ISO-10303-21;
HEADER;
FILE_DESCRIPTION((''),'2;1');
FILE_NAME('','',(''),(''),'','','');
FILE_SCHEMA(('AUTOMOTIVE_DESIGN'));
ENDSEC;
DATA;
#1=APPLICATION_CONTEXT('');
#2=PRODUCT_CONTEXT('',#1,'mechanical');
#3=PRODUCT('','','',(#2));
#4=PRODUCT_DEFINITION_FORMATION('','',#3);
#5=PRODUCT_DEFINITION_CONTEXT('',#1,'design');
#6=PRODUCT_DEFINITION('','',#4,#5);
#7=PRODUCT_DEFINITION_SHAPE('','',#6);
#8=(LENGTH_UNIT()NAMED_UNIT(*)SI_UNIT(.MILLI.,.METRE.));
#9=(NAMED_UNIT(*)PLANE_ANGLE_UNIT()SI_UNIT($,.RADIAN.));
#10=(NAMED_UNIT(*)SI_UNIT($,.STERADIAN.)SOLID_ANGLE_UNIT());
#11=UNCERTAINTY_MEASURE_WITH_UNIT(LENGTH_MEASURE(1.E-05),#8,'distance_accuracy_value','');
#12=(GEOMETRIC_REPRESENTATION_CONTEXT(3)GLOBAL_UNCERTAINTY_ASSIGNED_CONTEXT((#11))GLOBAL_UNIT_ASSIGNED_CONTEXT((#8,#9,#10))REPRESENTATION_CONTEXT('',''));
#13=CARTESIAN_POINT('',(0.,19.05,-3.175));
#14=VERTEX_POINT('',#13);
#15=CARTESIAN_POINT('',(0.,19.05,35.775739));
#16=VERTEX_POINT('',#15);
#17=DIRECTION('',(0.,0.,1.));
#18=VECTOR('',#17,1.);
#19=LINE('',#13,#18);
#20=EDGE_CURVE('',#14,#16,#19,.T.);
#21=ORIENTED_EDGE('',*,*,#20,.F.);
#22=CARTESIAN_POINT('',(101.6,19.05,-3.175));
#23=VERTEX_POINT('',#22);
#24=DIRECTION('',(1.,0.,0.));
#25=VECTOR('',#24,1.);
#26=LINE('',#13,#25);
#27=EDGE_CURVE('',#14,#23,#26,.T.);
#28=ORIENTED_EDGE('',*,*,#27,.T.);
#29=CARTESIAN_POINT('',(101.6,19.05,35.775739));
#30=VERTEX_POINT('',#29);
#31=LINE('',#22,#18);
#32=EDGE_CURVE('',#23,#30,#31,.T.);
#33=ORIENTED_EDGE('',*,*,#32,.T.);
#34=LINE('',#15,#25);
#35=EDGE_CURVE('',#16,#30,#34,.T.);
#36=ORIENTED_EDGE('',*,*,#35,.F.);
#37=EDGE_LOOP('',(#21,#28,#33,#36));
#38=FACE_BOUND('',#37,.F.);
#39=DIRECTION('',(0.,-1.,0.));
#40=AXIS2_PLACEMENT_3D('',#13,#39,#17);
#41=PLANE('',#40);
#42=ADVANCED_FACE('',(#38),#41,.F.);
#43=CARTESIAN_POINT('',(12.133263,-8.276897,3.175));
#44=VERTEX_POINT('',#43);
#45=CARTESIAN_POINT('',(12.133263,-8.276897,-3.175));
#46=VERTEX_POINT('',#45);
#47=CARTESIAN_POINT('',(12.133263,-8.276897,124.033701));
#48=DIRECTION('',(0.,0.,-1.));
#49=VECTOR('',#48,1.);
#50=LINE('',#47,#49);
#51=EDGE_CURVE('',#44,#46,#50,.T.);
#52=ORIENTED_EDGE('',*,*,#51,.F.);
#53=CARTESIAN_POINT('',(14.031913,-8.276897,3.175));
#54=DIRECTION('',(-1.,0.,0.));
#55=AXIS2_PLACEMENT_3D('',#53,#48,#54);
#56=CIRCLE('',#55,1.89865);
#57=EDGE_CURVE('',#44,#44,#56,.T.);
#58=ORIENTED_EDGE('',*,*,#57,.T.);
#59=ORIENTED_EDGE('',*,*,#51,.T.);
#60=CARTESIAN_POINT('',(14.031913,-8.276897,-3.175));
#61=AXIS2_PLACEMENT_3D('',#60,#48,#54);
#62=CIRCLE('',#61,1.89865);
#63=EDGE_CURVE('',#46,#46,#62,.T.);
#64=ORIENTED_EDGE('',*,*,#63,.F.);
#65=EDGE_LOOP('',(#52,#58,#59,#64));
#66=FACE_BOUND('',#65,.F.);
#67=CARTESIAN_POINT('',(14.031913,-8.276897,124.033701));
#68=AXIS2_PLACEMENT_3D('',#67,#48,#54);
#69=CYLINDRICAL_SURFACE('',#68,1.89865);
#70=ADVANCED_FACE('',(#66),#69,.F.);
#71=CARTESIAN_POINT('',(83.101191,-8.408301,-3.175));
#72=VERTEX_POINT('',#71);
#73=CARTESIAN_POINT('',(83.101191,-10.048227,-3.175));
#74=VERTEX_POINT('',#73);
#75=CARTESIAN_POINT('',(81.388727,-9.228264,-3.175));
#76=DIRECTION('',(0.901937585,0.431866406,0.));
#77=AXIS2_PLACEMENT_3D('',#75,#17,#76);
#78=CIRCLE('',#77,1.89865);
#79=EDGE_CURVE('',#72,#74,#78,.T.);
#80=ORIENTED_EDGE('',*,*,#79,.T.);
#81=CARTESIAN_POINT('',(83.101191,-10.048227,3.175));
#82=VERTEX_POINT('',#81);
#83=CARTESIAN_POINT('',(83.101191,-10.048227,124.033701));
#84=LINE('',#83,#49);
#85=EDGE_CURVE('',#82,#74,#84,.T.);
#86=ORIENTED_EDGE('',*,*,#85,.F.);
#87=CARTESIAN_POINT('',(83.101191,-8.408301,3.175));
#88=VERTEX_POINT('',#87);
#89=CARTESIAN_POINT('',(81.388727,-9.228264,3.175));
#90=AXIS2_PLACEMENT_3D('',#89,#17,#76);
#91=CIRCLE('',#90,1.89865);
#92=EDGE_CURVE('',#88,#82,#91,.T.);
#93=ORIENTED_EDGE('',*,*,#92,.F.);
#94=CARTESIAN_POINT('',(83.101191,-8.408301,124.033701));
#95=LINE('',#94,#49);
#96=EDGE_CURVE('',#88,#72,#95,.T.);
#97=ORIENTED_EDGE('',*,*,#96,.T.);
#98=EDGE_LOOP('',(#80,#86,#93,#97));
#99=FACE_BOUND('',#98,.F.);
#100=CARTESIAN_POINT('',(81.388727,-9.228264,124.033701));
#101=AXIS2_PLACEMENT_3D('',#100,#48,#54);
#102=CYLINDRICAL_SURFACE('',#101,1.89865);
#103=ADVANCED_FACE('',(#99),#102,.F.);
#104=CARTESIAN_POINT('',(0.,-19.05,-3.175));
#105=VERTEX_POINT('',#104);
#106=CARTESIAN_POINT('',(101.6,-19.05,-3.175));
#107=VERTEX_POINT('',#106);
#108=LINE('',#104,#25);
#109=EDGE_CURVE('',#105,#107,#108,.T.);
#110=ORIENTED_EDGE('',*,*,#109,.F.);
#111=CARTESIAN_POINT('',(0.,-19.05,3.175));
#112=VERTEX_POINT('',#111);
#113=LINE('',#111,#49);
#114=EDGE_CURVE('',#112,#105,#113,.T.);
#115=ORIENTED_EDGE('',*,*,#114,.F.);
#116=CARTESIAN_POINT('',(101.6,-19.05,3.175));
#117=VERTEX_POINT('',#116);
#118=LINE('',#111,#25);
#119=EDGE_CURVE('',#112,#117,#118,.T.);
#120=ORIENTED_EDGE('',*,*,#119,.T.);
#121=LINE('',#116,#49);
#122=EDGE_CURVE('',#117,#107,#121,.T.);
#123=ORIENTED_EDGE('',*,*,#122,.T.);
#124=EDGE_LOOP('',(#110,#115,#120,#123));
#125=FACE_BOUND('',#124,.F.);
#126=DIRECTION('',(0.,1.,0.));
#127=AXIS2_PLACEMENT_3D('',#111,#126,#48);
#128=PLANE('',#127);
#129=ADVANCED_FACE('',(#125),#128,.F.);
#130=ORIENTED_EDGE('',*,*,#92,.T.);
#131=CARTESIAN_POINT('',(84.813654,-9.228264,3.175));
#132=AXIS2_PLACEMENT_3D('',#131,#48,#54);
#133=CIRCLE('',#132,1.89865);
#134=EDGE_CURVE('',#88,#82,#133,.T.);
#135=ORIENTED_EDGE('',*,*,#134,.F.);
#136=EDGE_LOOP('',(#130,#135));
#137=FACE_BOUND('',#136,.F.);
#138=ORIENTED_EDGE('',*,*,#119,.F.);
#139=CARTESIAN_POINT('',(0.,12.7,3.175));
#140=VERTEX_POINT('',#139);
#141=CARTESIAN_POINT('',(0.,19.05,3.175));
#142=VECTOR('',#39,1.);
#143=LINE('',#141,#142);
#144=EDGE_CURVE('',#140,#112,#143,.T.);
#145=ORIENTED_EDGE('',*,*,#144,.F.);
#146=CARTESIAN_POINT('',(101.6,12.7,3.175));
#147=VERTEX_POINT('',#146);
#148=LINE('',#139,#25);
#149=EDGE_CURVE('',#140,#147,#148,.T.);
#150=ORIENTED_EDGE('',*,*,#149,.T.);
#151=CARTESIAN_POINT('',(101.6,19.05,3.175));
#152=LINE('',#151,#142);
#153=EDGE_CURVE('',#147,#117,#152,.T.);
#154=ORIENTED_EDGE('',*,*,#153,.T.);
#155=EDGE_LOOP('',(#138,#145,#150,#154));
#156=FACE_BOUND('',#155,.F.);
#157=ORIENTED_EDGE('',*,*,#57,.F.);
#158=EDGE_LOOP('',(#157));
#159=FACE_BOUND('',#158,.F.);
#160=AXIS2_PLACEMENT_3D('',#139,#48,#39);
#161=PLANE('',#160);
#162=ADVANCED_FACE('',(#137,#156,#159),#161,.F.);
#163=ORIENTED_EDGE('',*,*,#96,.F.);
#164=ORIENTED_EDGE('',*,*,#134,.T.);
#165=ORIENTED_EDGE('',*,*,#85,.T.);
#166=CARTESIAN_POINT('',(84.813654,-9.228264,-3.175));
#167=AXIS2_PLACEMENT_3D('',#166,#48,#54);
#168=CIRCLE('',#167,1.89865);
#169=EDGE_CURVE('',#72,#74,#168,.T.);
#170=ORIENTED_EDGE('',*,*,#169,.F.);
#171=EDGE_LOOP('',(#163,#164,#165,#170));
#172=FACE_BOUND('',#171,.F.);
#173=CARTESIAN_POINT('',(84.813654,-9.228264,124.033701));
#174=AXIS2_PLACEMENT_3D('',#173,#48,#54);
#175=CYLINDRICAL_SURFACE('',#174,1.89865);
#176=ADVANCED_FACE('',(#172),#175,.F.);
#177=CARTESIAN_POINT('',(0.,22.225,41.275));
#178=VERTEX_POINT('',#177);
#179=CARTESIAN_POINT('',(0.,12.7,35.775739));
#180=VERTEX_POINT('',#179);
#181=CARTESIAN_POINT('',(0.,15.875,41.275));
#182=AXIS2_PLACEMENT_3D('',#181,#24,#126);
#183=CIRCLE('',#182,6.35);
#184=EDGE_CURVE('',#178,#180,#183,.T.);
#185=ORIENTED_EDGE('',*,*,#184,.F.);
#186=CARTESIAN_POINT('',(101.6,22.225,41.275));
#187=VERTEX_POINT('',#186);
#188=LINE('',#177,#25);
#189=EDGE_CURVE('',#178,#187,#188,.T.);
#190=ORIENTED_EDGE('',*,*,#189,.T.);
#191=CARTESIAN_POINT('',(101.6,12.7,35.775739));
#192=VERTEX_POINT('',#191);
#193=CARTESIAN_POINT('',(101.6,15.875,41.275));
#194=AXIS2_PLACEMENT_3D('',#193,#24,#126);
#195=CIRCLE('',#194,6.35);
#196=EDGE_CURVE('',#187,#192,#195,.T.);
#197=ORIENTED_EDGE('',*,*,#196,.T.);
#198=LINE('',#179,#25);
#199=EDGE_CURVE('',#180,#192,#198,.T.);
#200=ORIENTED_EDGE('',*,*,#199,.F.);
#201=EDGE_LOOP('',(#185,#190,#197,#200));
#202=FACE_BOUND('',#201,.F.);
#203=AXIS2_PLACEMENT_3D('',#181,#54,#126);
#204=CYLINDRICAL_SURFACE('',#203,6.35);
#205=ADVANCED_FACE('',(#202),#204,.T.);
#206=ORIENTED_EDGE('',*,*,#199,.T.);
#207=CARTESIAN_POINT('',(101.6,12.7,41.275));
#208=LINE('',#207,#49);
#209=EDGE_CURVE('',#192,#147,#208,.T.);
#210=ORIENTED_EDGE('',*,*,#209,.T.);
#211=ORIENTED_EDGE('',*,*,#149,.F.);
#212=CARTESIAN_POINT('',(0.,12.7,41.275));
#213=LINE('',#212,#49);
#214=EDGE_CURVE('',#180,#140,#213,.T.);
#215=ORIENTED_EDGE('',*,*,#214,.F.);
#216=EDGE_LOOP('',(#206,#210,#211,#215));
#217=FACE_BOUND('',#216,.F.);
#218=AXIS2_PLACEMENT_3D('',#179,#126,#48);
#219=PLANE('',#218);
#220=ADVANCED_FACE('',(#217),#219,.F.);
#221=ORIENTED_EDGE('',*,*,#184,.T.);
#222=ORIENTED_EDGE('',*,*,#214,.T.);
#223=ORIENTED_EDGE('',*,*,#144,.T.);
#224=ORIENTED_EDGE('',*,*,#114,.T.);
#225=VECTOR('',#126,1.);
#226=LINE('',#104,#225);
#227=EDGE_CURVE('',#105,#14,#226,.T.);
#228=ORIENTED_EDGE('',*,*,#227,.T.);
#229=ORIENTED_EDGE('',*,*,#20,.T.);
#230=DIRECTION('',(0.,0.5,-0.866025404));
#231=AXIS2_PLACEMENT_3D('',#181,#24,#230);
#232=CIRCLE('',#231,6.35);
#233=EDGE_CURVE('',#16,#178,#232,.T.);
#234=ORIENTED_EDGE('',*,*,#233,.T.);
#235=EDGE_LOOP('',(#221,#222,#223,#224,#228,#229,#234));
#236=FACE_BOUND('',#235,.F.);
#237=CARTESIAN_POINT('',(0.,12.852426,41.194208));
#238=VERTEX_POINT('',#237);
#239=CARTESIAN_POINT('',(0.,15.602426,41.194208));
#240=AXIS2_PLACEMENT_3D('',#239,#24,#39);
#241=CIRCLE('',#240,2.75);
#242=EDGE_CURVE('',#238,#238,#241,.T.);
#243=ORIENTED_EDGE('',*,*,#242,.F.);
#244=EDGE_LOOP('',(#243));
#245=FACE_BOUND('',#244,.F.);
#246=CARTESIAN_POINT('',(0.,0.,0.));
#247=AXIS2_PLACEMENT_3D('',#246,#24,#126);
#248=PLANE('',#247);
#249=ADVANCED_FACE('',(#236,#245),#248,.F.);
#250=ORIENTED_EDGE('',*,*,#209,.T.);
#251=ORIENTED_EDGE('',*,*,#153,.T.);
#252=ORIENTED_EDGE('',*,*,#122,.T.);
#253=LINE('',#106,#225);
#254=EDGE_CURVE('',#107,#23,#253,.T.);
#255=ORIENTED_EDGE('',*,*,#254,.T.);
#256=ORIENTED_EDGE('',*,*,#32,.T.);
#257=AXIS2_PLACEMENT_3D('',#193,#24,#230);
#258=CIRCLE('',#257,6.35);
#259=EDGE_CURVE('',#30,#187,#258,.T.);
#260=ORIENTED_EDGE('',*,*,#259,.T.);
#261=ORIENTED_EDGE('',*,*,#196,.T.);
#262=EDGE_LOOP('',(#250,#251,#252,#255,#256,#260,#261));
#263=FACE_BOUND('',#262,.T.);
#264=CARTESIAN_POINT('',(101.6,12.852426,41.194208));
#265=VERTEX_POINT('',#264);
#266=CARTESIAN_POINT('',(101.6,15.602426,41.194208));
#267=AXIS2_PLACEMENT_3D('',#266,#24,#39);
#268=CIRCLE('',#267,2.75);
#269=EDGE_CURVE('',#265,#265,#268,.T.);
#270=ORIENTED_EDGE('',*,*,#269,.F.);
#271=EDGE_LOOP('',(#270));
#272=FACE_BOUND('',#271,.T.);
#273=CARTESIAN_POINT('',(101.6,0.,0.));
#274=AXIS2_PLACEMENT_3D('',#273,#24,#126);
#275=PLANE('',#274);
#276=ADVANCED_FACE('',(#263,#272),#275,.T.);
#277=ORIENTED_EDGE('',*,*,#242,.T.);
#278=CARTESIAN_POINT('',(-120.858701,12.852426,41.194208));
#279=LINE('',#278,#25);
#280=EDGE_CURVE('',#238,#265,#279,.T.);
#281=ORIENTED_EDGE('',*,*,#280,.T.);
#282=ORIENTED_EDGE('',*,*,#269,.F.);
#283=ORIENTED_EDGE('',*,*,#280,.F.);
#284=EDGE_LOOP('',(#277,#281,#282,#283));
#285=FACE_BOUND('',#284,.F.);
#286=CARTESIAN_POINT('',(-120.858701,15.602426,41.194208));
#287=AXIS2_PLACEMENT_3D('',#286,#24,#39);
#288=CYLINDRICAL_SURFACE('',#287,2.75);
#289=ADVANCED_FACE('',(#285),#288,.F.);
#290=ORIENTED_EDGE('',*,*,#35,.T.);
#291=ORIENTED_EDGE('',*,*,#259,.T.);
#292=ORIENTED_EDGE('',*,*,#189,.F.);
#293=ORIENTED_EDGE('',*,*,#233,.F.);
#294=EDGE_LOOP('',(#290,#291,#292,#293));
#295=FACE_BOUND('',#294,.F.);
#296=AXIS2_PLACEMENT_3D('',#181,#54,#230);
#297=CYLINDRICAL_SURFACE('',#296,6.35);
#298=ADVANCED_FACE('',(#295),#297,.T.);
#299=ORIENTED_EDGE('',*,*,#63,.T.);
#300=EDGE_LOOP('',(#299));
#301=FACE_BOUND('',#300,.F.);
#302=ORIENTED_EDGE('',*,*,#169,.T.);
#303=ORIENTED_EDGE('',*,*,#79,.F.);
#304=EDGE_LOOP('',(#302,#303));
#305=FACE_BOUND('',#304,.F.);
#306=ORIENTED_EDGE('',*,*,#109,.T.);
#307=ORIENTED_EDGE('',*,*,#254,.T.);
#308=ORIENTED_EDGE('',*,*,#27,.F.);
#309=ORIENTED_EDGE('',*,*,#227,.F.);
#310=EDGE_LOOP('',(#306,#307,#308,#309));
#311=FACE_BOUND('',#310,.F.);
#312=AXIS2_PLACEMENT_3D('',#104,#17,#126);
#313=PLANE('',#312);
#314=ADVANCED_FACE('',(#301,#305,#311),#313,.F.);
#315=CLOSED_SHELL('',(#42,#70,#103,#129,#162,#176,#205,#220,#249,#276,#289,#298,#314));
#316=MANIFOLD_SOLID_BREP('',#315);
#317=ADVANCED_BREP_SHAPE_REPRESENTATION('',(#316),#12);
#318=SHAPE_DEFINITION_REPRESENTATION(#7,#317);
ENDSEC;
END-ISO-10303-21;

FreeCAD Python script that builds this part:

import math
import FreeCAD as App
import Part
import Sketcher

V = App.Vector
Q = App.Units.Quantity

doc = App.newDocument("Part")
body = doc.addObject("PartDesign::Body", "Body")

# Sketch on YZ plane
sketch1 = doc.addObject("Sketcher::SketchObject", "Sketch")
body.addObject(sketch1)
sketch1.AttachmentSupport = (doc.YZ_Plane, [""])
sketch1.MapMode = "FlatFace"
sketch1.addGeometry(Part.LineSegment(V(-19, -3, 0), V(19, -3, 0)), False)
sketch1.addGeometry(Part.LineSegment(V(19, -3, 0), V(19, 36, 0)), False)
sketch1.addGeometry(Part.ArcOfCircle(Part.Circle(V(16, 41, 0), V(0, 0, 1), 6), math.radians(-60), math.radians(0)), False)
sketch1.addGeometry(Part.ArcOfCircle(Part.Circle(V(16, 41, 0), V(0, 0, 1), 6), math.radians(0), math.radians(240)), False)
sketch1.addGeometry(Part.LineSegment(V(13, 36, 0), V(13, 3, 0)), False)
sketch1.addGeometry(Part.LineSegment(V(13, 3, 0), V(-19, 3, 0)), False)
sketch1.addGeometry(Part.LineSegment(V(-19, 3, 0), V(-19, -3, 0)), False)
sketch1.addConstraint(Sketcher.Constraint("Coincident", 0, 2, 1, 1))
sketch1.addConstraint(Sketcher.Constraint("Coincident", 1, 2, 2, 1))
sketch1.addConstraint(Sketcher.Constraint("Tangent", 2, 2, 3, 1))
sketch1.addConstraint(Sketcher.Constraint("Coincident", 3, 2, 4, 1))
sketch1.addConstraint(Sketcher.Constraint("Coincident", 4, 2, 5, 1))
sketch1.addConstraint(Sketcher.Constraint("Coincident", 5, 2, 6, 1))
sketch1.addConstraint(Sketcher.Constraint("Coincident", 6, 2, 0, 1))
sketch1.addConstraint(Sketcher.Constraint("Horizontal", 0))
sketch1.addConstraint(Sketcher.Constraint("Vertical", 1))
sketch1.addConstraint(Sketcher.Constraint("Vertical", 4))
sketch1.addConstraint(Sketcher.Constraint("Horizontal", 5))
sketch1.addConstraint(Sketcher.Constraint("Vertical", 6))
sketch1.addConstraint(Sketcher.Constraint("Equal", 2, 3))
sketch1.addConstraint(Sketcher.Constraint("Symmetric", 0, 2, 5, 2, -1, 1))
sketch1.addConstraint(Sketcher.Constraint("Horizontal", 3, 3, 2, 2))
sketch1.addConstraint(Sketcher.Constraint("Horizontal", 1, 2, 3, 2))
sketch1.addConstraint(Sketcher.Constraint("Radius", 2, Q("0.25 in")))
sketch1.addConstraint(Sketcher.Constraint("DistanceX", 0, 1, 0, 2, Q("1.5 in")))
sketch1.addConstraint(Sketcher.Constraint("DistanceX", 5, 2, 5, 1, Q("1.25 in")))
sketch1.addConstraint(Sketcher.Constraint("DistanceY", 6, 2, 6, 1, Q("0.25 in")))
sketch1.addConstraint(Sketcher.Constraint("DistanceY", 4, 2, 2, 3, Q("1.5 in")))
pad1 = doc.addObject("PartDesign::Pad", "Pad")
body.addObject(pad1)
pad1.Profile = sketch1
pad1.Length = Q("4 in")

# Sketch on YZ plane
sketch2 = doc.addObject("Sketcher::SketchObject", "Sketch001")
body.addObject(sketch2)
sketch2.AttachmentSupport = (doc.YZ_Plane, [""])
sketch2.MapMode = "FlatFace"
sketch2.addGeometry(Part.Circle(V(15.6, 41.2, 0), V(0, 0, 1), 2.8), False)
sketch2.addConstraint(Sketcher.Constraint("Diameter", 0, 5.5))
sketch2.addConstraint(Sketcher.Constraint("DistanceX", -1, 1, 0, 3, 15.602426))
sketch2.addConstraint(Sketcher.Constraint("DistanceY", -1, 1, 0, 3, 41.194208))
doc.recompute()
hole = doc.addObject("PartDesign::Hole", "Hole")
body.addObject(hole)
hole.Profile = sketch2
hole.ThreadType = "None"
hole.Diameter = 5.5
hole.DepthType = "ThroughAll"
hole.Reversed = True

# Sketch on XY plane
sketch3 = doc.addObject("Sketcher::SketchObject", "Sketch002")
body.addObject(sketch3)
sketch3.AttachmentSupport = (doc.XY_Plane, [""])
sketch3.MapMode = "FlatFace"
sketch3.AttachmentOffset = App.Placement(V(0, 0, 0.125 * 25.4), App.Rotation())
sketch3.addGeometry(Part.Circle(V(14, -8.3, 0), V(0, 0, 1), 1.9), False)
sketch3.addGeometry(Part.Circle(V(81.4, -9.2, 0), V(0, 0, 1), 1.9), False)
sketch3.addGeometry(Part.Circle(V(84.8, -9.2, 0), V(0, 0, 1), 1.9), False)
sketch3.addConstraint(Sketcher.Constraint("Equal", 0, 1))
sketch3.addConstraint(Sketcher.Constraint("Equal", 1, 2))
sketch3.addConstraint(Sketcher.Constraint("Horizontal", 1, 3, 2, 3))
sketch3.addConstraint(Sketcher.Constraint("Diameter", 0, Q("0.1495 in")))
sketch3.addConstraint(Sketcher.Constraint("DistanceX", 0, 3, 2, 3, 70.781741))
sketch3.addConstraint(Sketcher.Constraint("DistanceX", -1, 1, 0, 3, 14.031913))
sketch3.addConstraint(Sketcher.Constraint("DistanceY", 0, 3, -1, 1, 8.276897))
sketch3.addConstraint(Sketcher.Constraint("DistanceX", -1, 1, 1, 3, 81.388727))
sketch3.addConstraint(Sketcher.Constraint("DistanceY", 1, 3, -1, 1, 9.228264))
doc.recompute()
hole2 = doc.addObject("PartDesign::Hole", "Hole001")
body.addObject(hole2)
hole2.Profile = sketch3
hole2.ThreadType = "None"
hole2.Diameter = Q("0.1495 in")
hole2.DepthType = "ThroughAll"

doc.recompute()
